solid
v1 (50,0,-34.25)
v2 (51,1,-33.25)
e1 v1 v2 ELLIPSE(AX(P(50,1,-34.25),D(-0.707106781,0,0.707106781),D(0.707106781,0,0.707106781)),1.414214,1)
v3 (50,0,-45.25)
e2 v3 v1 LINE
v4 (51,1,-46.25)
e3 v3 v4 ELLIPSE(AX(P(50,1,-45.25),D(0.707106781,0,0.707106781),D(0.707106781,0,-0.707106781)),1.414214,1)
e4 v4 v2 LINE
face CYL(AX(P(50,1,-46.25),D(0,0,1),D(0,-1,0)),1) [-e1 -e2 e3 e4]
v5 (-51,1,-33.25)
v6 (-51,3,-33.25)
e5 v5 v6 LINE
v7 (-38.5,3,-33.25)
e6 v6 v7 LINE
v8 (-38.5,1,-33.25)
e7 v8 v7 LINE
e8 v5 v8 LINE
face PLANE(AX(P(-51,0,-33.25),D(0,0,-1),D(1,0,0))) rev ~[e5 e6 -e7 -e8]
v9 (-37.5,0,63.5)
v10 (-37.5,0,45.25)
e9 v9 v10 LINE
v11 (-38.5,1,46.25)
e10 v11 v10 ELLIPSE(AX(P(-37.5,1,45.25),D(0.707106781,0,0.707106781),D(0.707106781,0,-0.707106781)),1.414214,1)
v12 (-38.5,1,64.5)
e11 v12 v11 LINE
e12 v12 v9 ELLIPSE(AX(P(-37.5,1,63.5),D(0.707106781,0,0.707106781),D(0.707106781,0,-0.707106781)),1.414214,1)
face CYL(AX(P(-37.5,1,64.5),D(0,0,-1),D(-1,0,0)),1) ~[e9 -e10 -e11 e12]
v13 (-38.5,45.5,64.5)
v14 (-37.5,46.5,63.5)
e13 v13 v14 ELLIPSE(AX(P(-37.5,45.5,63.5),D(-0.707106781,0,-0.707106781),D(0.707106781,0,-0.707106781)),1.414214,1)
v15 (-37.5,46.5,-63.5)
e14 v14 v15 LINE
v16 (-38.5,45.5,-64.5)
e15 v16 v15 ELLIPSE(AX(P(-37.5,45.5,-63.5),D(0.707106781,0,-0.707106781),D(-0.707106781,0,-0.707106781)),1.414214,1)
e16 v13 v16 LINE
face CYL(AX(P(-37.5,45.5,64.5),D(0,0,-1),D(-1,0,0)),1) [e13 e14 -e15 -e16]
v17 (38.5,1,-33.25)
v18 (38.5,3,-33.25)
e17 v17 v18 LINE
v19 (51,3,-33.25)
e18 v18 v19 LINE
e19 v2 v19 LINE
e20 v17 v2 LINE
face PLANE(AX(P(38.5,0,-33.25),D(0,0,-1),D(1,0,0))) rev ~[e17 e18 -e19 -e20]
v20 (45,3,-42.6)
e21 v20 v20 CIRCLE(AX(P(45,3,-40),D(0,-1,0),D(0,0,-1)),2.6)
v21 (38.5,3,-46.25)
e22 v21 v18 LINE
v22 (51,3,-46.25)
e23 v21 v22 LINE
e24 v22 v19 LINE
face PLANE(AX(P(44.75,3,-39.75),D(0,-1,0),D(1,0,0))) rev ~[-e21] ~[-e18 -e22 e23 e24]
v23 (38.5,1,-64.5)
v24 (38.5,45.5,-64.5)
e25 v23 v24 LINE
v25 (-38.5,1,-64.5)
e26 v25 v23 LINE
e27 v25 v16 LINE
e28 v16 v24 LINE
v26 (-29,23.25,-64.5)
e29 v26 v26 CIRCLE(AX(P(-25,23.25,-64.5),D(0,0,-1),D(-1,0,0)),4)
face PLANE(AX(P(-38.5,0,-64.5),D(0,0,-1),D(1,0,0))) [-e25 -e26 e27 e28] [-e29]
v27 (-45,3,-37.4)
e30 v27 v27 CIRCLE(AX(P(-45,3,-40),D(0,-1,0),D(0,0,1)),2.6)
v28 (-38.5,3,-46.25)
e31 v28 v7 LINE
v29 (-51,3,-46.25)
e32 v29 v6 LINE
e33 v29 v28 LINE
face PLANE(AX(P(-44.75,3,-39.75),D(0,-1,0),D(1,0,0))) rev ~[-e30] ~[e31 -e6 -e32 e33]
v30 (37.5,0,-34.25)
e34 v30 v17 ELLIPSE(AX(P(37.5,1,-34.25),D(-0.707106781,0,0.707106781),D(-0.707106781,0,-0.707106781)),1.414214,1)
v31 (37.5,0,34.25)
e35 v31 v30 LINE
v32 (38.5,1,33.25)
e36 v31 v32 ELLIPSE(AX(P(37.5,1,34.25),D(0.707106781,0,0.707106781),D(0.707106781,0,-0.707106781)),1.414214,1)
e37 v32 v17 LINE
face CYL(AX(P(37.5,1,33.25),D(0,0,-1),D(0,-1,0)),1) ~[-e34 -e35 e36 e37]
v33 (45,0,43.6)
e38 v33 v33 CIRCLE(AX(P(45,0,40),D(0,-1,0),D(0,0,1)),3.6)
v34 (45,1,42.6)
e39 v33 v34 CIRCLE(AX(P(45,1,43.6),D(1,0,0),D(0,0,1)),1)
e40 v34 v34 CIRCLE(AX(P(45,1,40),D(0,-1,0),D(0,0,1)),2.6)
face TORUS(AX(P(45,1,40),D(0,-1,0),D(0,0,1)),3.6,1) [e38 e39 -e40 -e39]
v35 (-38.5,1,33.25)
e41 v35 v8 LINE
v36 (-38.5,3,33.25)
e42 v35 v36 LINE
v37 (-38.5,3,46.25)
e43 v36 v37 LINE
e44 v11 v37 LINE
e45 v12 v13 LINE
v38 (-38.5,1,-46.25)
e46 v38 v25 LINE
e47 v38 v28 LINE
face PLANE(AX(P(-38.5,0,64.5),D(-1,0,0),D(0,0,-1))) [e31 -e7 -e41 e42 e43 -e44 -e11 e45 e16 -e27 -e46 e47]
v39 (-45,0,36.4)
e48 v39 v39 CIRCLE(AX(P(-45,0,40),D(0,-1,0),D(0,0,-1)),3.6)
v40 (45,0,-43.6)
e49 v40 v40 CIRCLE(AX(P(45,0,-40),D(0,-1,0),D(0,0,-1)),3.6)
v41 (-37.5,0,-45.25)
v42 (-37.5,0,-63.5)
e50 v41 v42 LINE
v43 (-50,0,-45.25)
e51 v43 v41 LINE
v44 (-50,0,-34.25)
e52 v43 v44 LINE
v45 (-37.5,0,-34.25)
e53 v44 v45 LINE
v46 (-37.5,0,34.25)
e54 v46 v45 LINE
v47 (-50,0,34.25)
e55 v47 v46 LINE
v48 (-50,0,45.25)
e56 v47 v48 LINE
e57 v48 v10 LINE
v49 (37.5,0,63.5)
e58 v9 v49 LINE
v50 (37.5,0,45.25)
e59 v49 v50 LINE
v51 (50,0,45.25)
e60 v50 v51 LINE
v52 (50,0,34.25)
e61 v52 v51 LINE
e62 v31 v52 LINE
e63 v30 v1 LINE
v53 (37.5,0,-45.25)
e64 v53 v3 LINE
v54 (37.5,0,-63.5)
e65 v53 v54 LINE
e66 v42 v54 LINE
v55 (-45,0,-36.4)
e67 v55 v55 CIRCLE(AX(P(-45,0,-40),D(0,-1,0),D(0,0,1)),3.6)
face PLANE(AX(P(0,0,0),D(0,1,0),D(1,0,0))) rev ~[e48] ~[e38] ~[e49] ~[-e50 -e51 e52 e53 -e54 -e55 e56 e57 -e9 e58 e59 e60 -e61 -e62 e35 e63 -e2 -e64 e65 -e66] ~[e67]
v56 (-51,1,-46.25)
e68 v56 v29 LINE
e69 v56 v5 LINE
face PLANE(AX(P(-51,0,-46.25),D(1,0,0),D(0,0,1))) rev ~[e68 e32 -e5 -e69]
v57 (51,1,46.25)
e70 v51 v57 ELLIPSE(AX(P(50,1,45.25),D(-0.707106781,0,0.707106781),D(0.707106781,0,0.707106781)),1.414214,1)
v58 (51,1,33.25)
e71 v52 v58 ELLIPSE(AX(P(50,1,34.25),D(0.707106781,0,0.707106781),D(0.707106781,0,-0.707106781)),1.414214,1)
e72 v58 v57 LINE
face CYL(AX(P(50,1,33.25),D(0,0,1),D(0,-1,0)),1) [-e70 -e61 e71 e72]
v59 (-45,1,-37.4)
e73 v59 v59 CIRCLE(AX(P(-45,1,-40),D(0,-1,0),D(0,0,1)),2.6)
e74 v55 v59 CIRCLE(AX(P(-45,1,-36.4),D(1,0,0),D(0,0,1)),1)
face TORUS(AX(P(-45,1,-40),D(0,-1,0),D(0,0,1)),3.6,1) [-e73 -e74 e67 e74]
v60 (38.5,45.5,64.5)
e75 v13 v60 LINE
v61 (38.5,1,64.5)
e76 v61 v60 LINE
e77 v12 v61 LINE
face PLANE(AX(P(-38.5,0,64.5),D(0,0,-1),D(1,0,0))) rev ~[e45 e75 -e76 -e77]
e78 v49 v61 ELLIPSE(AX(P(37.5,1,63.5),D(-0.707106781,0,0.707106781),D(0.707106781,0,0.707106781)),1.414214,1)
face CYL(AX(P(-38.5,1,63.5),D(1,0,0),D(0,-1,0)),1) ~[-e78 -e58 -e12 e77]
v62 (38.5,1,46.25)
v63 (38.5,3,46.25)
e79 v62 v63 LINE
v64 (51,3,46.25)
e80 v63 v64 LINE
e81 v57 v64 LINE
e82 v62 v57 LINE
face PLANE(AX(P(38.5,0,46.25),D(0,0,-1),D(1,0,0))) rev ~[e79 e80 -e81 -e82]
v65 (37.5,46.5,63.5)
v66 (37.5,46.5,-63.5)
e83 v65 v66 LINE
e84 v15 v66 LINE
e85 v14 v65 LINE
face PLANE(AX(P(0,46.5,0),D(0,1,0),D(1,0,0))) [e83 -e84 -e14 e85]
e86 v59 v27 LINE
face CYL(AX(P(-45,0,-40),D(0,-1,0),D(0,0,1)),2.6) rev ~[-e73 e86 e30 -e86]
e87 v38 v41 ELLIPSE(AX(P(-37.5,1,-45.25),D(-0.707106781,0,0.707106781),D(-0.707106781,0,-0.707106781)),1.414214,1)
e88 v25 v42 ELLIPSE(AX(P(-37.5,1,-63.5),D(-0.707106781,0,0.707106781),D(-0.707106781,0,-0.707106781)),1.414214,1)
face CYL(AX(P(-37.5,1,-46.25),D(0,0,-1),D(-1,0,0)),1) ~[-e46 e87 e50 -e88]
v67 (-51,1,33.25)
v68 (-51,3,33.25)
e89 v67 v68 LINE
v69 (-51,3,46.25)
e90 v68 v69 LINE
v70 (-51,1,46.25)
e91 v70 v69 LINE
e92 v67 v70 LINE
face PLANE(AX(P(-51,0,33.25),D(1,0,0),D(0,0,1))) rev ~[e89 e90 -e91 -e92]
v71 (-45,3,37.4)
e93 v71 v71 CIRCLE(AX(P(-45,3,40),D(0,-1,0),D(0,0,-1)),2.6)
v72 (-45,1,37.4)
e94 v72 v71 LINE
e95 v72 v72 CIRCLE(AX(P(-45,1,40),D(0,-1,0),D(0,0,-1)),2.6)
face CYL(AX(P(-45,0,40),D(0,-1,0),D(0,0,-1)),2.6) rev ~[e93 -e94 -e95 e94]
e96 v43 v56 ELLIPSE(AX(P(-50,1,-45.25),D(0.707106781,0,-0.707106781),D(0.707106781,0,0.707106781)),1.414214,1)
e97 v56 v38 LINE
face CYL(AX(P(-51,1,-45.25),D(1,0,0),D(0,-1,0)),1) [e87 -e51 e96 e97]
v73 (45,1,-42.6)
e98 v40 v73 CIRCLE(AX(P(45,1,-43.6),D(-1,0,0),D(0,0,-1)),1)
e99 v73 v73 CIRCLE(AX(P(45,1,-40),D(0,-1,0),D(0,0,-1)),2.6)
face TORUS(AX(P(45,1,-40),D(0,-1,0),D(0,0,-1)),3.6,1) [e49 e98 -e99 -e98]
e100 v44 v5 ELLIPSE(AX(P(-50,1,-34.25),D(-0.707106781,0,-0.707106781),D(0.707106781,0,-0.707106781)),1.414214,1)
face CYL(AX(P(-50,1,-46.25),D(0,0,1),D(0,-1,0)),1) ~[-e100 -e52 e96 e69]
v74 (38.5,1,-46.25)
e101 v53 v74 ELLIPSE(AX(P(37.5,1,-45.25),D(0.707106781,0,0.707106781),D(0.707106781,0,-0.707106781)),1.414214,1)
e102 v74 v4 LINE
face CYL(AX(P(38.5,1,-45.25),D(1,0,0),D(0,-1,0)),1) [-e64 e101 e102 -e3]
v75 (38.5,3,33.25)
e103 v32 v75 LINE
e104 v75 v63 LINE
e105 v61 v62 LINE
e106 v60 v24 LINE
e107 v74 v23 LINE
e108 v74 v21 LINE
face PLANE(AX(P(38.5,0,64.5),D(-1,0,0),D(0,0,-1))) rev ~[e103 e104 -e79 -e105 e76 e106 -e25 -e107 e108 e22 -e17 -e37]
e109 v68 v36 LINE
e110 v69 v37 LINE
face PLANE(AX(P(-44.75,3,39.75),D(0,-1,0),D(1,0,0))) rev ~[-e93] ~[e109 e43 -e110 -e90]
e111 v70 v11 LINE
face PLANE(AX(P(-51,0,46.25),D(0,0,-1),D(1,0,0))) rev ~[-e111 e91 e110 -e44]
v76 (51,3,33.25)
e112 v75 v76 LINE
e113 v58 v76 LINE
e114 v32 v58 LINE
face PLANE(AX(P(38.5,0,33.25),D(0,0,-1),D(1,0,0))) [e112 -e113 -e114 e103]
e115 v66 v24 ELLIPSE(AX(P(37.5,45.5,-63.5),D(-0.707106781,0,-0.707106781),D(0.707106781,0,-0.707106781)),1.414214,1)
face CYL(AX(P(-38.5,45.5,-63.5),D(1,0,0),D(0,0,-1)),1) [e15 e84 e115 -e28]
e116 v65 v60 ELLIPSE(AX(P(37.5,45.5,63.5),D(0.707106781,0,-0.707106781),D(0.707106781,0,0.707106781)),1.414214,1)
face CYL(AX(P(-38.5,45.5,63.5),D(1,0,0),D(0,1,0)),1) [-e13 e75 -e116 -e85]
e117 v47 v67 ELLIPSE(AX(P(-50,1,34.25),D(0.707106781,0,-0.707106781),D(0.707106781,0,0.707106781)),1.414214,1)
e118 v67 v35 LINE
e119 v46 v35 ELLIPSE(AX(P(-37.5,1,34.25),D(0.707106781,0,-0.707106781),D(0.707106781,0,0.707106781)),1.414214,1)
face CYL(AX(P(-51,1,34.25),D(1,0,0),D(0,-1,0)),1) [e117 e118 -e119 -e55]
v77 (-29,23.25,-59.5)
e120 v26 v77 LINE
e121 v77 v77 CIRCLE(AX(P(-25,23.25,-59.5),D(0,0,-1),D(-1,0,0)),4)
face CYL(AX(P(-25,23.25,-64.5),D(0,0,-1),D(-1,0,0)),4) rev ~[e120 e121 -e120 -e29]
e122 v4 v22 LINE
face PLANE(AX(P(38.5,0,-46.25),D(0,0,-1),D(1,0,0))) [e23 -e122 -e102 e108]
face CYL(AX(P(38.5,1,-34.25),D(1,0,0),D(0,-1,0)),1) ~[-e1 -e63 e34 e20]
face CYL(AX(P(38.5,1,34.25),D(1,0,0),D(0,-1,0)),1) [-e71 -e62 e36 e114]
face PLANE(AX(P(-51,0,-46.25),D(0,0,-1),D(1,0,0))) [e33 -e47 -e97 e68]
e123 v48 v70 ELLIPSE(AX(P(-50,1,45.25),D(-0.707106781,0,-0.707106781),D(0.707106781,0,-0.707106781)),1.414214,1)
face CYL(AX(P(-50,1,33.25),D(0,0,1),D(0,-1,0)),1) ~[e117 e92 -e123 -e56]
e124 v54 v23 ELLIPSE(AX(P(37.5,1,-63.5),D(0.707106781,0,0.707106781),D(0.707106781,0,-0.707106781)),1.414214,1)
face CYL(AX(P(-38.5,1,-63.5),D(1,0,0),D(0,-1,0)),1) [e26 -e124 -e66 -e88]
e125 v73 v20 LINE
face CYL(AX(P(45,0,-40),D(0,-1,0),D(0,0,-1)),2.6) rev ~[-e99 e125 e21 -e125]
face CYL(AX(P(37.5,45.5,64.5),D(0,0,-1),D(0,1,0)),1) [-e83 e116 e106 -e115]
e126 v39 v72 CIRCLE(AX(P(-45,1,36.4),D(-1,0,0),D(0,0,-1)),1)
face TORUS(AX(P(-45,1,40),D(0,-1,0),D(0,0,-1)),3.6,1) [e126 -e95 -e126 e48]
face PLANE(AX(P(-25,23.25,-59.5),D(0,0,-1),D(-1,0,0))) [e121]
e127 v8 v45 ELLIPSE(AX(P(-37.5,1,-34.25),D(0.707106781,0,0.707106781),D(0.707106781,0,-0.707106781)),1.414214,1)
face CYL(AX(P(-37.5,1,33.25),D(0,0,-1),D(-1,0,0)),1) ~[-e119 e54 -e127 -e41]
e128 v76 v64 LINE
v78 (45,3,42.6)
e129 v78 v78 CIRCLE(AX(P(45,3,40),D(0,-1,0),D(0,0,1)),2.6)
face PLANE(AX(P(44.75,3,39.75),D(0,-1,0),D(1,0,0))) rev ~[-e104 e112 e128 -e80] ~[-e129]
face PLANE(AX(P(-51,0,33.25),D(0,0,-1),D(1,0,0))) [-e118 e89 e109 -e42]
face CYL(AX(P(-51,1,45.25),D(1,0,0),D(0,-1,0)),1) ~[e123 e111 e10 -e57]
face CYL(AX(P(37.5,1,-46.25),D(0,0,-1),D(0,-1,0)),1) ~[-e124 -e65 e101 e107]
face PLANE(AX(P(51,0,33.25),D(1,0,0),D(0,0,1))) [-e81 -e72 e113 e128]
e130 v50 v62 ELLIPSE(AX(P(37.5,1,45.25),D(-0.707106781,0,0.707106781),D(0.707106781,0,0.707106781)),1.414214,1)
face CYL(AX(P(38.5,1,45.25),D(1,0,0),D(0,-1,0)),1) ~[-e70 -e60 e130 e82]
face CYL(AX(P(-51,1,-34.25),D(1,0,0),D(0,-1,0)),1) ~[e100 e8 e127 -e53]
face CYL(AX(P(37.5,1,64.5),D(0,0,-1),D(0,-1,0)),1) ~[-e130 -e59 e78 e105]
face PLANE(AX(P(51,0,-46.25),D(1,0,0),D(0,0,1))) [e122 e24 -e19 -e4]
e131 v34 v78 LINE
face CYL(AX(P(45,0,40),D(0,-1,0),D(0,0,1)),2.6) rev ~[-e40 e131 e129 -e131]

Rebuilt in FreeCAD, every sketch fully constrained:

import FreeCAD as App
import Part
import Sketcher
from FreeCAD import Vector


def edges_at(feature, points):
    """Names of the edges that pass closest to the given points."""
    edges = feature.Shape.Edges
    near = lambda p: min(range(len(edges)), key=lambda i: edges[i].distToShape(Part.Vertex(*p))[0])
    return sorted({f"Edge{near(p) + 1}" for p in points})

doc = App.newDocument("Part")
body = doc.addObject("PartDesign::Body", "Body")

sketch1 = body.newObject("Sketcher::SketchObject", "Sketch")
sketch1.AttachmentSupport = (doc.getObject("XZ_Plane"), [""])
sketch1.MapMode = "FlatFace"
sketch1.addGeometry(Part.LineSegment(Vector(-38, -64, 0), Vector(-38, 64, 0)), False)
sketch1.addGeometry(Part.LineSegment(Vector(-38, 64, 0), Vector(38, 64, 0)), False)
sketch1.addGeometry(Part.LineSegment(Vector(38, 64, 0), Vector(38, -64, 0)), False)
sketch1.addGeometry(Part.LineSegment(Vector(38, -64, 0), Vector(-38, -64, 0)), False)
sketch1.addConstraint(Sketcher.Constraint("Coincident", 0, 2, 1, 1))
sketch1.addConstraint(Sketcher.Constraint("Coincident", 1, 2, 2, 1))
sketch1.addConstraint(Sketcher.Constraint("Coincident", 2, 2, 3, 1))
sketch1.addConstraint(Sketcher.Constraint("Coincident", 3, 2, 0, 1))
sketch1.addConstraint(Sketcher.Constraint("Vertical", 0))
sketch1.addConstraint(Sketcher.Constraint("Horizontal", 1))
sketch1.addConstraint(Sketcher.Constraint("Vertical", 2))
sketch1.addConstraint(Sketcher.Constraint("Horizontal", 3))
sketch1.addConstraint(Sketcher.Constraint("Symmetric", 0, 2, 2, 2, -1, 1))
sketch1.addConstraint(Sketcher.Constraint("DistanceX", 1, 1, 1, 2, 77.0))
sketch1.addConstraint(Sketcher.Constraint("DistanceY", 0, 1, 0, 2, 129.0))
pad1 = body.newObject("PartDesign::Pad", "Pad")
pad1.Profile = sketch1
pad1.Length = 46.5
pad1.Reversed = True

sketch2 = body.newObject("Sketcher::SketchObject", "Sketch001")
sketch2.AttachmentSupport = (doc.getObject("XZ_Plane"), [""])
sketch2.MapMode = "FlatFace"
sketch2.addGeometry(Part.LineSegment(Vector(-51, 46.2, 0), Vector(-51, 33.2, 0)), False)
sketch2.addGeometry(Part.LineSegment(Vector(-51, 33.2, 0), Vector(-38.5, 33.2, 0)), False)
sketch2.addGeometry(Part.LineSegment(Vector(-38.5, 33.2, 0), Vector(-38.5, 46.2, 0)), False)
sketch2.addGeometry(Part.LineSegment(Vector(-38.5, 46.2, 0), Vector(-51, 46.2, 0)), False)
sketch2.addGeometry(Part.Circle(Vector(-45, 40, 0), Vector(0, 0, 1), 2.6), False)
sketch2.addGeometry(Part.LineSegment(Vector(38.5, 46.2, 0), Vector(38.5, 33.2, 0)), False)
sketch2.addGeometry(Part.LineSegment(Vector(38.5, 33.2, 0), Vector(51, 33.2, 0)), False)
sketch2.addGeometry(Part.LineSegment(Vector(51, 33.2, 0), Vector(51, 46.2, 0)), False)
sketch2.addGeometry(Part.LineSegment(Vector(51, 46.2, 0), Vector(38.5, 46.2, 0)), False)
sketch2.addGeometry(Part.Circle(Vector(45, 40, 0), Vector(0, 0, 1), 2.6), False)
sketch2.addGeometry(Part.LineSegment(Vector(38.5, -33.2, 0), Vector(38.5, -46.2, 0)), False)
sketch2.addGeometry(Part.LineSegment(Vector(38.5, -46.2, 0), Vector(51, -46.2, 0)), False)
sketch2.addGeometry(Part.LineSegment(Vector(51, -46.2, 0), Vector(51, -33.2, 0)), False)
sketch2.addGeometry(Part.LineSegment(Vector(51, -33.2, 0), Vector(38.5, -33.2, 0)), False)
sketch2.addGeometry(Part.Circle(Vector(45, -40, 0), Vector(0, 0, 1), 2.6), False)
sketch2.addGeometry(Part.LineSegment(Vector(-51, -33.2, 0), Vector(-51, -46.2, 0)), False)
sketch2.addGeometry(Part.LineSegment(Vector(-51, -46.2, 0), Vector(-38.5, -46.2, 0)), False)
sketch2.addGeometry(Part.LineSegment(Vector(-38.5, -46.2, 0), Vector(-38.5, -33.2, 0)), False)
sketch2.addGeometry(Part.LineSegment(Vector(-38.5, -33.2, 0), Vector(-51, -33.2, 0)), False)
sketch2.addGeometry(Part.Circle(Vector(-45, -40, 0), Vector(0, 0, 1), 2.6), False)
sketch2.addConstraint(Sketcher.Constraint("Coincident", 0, 2, 1, 1))
sketch2.addConstraint(Sketcher.Constraint("Coincident", 1, 2, 2, 1))
sketch2.addConstraint(Sketcher.Constraint("Coincident", 2, 2, 3, 1))
sketch2.addConstraint(Sketcher.Constraint("Coincident", 3, 2, 0, 1))
sketch2.addConstraint(Sketcher.Constraint("Coincident", 5, 2, 6, 1))
sketch2.addConstraint(Sketcher.Constraint("Coincident", 6, 2, 7, 1))
sketch2.addConstraint(Sketcher.Constraint("Coincident", 7, 2, 8, 1))
sketch2.addConstraint(Sketcher.Constraint("Coincident", 8, 2, 5, 1))
sketch2.addConstraint(Sketcher.Constraint("Coincident", 10, 2, 11, 1))
sketch2.addConstraint(Sketcher.Constraint("Coincident", 11, 2, 12, 1))
sketch2.addConstraint(Sketcher.Constraint("Coincident", 12, 2, 13, 1))
sketch2.addConstraint(Sketcher.Constraint("Coincident", 13, 2, 10, 1))
sketch2.addConstraint(Sketcher.Constraint("Coincident", 15, 2, 16, 1))
sketch2.addConstraint(Sketcher.Constraint("Coincident", 16, 2, 17, 1))
sketch2.addConstraint(Sketcher.Constraint("Coincident", 17, 2, 18, 1))
sketch2.addConstraint(Sketcher.Constraint("Coincident", 18, 2, 15, 1))
sketch2.addConstraint(Sketcher.Constraint("Vertical", 0))
sketch2.addConstraint(Sketcher.Constraint("Horizontal", 1))
sketch2.addConstraint(Sketcher.Constraint("Vertical", 2))
sketch2.addConstraint(Sketcher.Constraint("Horizontal", 3))
sketch2.addConstraint(Sketcher.Constraint("Vertical", 5))
sketch2.addConstraint(Sketcher.Constraint("Horizontal", 6))
sketch2.addConstraint(Sketcher.Constraint("Vertical", 7))
sketch2.addConstraint(Sketcher.Constraint("Horizontal", 8))
sketch2.addConstraint(Sketcher.Constraint("Vertical", 10))
sketch2.addConstraint(Sketcher.Constraint("Horizontal", 11))
sketch2.addConstraint(Sketcher.Constraint("Vertical", 12))
sketch2.addConstraint(Sketcher.Constraint("Horizontal", 13))
sketch2.addConstraint(Sketcher.Constraint("Vertical", 15))
sketch2.addConstraint(Sketcher.Constraint("Horizontal", 16))
sketch2.addConstraint(Sketcher.Constraint("Vertical", 17))
sketch2.addConstraint(Sketcher.Constraint("Horizontal", 18))
sketch2.addConstraint(Sketcher.Constraint("Equal", 4, 9))
sketch2.addConstraint(Sketcher.Constraint("Equal", 9, 14))
sketch2.addConstraint(Sketcher.Constraint("Equal", 14, 19))
sketch2.addConstraint(Sketcher.Constraint("Symmetric", 4, 3, 14, 3, -1, 1))
sketch2.addConstraint(Sketcher.Constraint("Symmetric", 9, 3, 19, 3, -1, 1))
sketch2.addConstraint(Sketcher.Constraint("Symmetric", 2, 2, 10, 2, -1, 1))
sketch2.addConstraint(Sketcher.Constraint("Symmetric", 0, 2, 12, 2, -1, 1))
sketch2.addConstraint(Sketcher.Constraint("Symmetric", 7, 2, 15, 2, -1, 1))
sketch2.addConstraint(Sketcher.Constraint("Symmetric", 5, 2, 17, 2, -1, 1))
sketch2.addConstraint(Sketcher.Constraint("Symmetric", 4, 3, 9, 3, -2))
sketch2.addConstraint(Sketcher.Constraint("Symmetric", 1, 2, 5, 2, -2))
sketch2.addConstraint(Sketcher.Constraint("Symmetric", 3, 2, 7, 2, -2))
sketch2.addConstraint(Sketcher.Constraint("Diameter", 4, 5.2))
sketch2.addConstraint(Sketcher.Constraint("DistanceY", 0, 2, 0, 1, 13.0))
sketch2.addConstraint(Sketcher.Constraint("DistanceX", 1, 1, 1, 2, 12.5))
sketch2.addConstraint(Sketcher.Constraint("DistanceX", 4, 3, -1, 1, 45.0))
sketch2.addConstraint(Sketcher.Constraint("DistanceY", -1, 1, 4, 3, 40.0))
sketch2.addConstraint(Sketcher.Constraint("DistanceX", 0, 2, -1, 1, 51.0))
sketch2.addConstraint(Sketcher.Constraint("DistanceY", 10, 2, 5, 2, 79.5))
pad2 = body.newObject("PartDesign::Pad", "Pad001")
pad2.Profile = sketch2
pad2.Length = 3
pad2.Reversed = True

sketch3 = body.newObject("Sketcher::SketchObject", "Sketch002")
sketch3.AttachmentSupport = (doc.getObject("XY_Plane"), [""])
sketch3.MapMode = "FlatFace"
sketch3.AttachmentOffset = App.Placement(Vector(0, 0, -64.5), App.Rotation())
sketch3.addGeometry(Part.Circle(Vector(-25, 23.2, 0), Vector(0, 0, 1), 4), False)
sketch3.addConstraint(Sketcher.Constraint("Diameter", 0, 8.0))
sketch3.addConstraint(Sketcher.Constraint("DistanceX", 0, 3, -1, 1, 25.0))
sketch3.addConstraint(Sketcher.Constraint("DistanceY", -1, 1, 0, 3, 23.25))
pocket1 = body.newObject("PartDesign::Pocket", "Pocket")
pocket1.Profile = sketch3
pocket1.Length = 5
pocket1.Reversed = True
doc.recompute()

fillet = body.newObject("PartDesign::Fillet", "Fillet")
fillet.Base = (pocket1, edges_at(pocket1, [
    (-38.5, 46.5, 0),
    (-38.5, 0, 55.375),
    (0, 46.5, 64.5),
    (-44.75, 0, 46.25),
    (-51, 0, 39.75),
    (-44.75, 0, 33.25),
    (-45, 0, 42.6),
    (38.5, 0, 0),
    (44.75, 0, 33.25),
    (51, 0, 39.75),
    (44.75, 0, 46.25),
    (45, 0, 37.4),
    (38.5, 0, -55.375),
    (44.75, 0, -46.25),
    (51, 0, -39.75),
    (44.75, 0, -33.25),
    (45, 0, -37.4),
    (38.5, 46.5, 0),
    (0, 0, 64.5),
    (-38.5, 0, 0),
    (-38.5, 0, -55.375),
    (-44.75, 0, -33.25),
    (-51, 0, -39.75),
    (-44.75, 0, -46.25),
    (-45, 0, -42.6),
    (0, 0, -64.5),
    (38.5, 0, 55.375),
    (0, 46.5, -64.5),
]))
fillet.Radius = 1

doc.recompute()
